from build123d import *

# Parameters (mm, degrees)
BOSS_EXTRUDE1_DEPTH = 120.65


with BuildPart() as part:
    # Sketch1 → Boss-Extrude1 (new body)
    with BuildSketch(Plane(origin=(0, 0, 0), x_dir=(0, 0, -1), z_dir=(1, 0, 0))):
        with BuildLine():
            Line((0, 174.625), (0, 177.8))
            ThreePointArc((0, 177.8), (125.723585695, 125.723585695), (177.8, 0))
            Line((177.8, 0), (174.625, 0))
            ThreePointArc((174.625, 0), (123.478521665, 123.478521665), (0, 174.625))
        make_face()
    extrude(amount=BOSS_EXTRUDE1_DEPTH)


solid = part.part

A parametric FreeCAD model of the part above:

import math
import FreeCAD as App
import Part
import Sketcher

V = App.Vector
Q = App.Units.Quantity

doc = App.newDocument("Part")
body = doc.addObject("PartDesign::Body", "Body")

# Sketch on YZ plane
sketch1 = doc.addObject("Sketcher::SketchObject", "Sketch")
body.addObject(sketch1)
sketch1.AttachmentSupport = (doc.YZ_Plane, [""])
sketch1.MapMode = "FlatFace"
sketch1.addGeometry([
    Part.LineSegment(V(177.8, 0, 0), V(174.6, 0, 0)),
    Part.ArcOfCircle(Part.Circle(V(0, 0, 0), V(0, 0, 1), 174.6), math.radians(-90), math.radians(0)),
    Part.LineSegment(V(0, -174.6, 0), V(0, -177.8, 0)),
    Part.ArcOfCircle(Part.Circle(V(0, 0, 0), V(0, 0, 1), 177.8), math.radians(-90), math.radians(0)),
], False)
sketch1.addConstraint([
    Sketcher.Constraint("Coincident", 0, 2, 1, 2),
    Sketcher.Constraint("Coincident", 1, 1, 2, 1),
    Sketcher.Constraint("Coincident", 2, 2, 3, 1),
    Sketcher.Constraint("Coincident", 3, 2, 0, 1),
    Sketcher.Constraint("Horizontal", 0),
    Sketcher.Constraint("Vertical", 2),
    Sketcher.Constraint("Coincident", 1, 3, -1, 1),
    Sketcher.Constraint("Coincident", 3, 3, -1, 1),
    Sketcher.Constraint("PointOnObject", 0, 2, -1),
    Sketcher.Constraint("PointOnObject", 1, 1, -2),
    Sketcher.Constraint("Radius", 3, Q("7 in")),
    Sketcher.Constraint("Radius", 1, Q("6.875 in")),
])
pad1 = doc.addObject("PartDesign::Pad", "Pad")
body.addObject(pad1)
pad1.Profile = sketch1
pad1.Length = Q("4.75 in")

doc.recompute()
